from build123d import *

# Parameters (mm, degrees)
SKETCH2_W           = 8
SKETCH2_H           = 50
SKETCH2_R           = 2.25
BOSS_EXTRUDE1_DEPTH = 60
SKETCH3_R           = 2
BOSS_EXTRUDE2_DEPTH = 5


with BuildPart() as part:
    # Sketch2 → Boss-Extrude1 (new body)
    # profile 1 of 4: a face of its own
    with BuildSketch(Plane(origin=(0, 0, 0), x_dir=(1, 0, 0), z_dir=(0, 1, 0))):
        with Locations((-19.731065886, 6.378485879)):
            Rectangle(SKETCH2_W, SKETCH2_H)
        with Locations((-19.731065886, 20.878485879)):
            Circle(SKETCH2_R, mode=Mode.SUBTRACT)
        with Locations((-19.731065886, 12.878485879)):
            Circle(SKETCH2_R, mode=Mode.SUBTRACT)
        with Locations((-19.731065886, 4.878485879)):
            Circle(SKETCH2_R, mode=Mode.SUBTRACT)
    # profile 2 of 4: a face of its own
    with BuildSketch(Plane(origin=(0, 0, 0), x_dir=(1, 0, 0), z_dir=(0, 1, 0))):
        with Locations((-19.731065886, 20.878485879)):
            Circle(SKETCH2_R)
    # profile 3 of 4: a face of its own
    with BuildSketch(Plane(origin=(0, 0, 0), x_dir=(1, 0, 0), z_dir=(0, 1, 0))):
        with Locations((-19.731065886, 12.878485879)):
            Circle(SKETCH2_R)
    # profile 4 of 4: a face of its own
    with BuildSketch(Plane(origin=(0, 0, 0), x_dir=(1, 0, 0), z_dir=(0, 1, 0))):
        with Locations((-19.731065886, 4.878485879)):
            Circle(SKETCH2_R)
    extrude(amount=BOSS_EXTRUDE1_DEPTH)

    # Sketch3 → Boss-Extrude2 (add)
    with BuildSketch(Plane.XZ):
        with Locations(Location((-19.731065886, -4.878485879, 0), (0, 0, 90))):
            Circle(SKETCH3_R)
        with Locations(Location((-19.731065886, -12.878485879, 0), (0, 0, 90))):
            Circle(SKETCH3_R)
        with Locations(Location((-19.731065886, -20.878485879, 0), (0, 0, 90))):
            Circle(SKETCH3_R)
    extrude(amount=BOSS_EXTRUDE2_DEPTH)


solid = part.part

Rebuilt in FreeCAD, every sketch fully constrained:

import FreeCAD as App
import Part
import Sketcher
from FreeCAD import Vector
Q = App.Units.Quantity

doc = App.newDocument("Part")
body = doc.addObject("PartDesign::Body", "Body")

# Sketch on XZ plane
sketch1 = body.newObject("Sketcher::SketchObject", "Sketch")
sketch1.AttachmentSupport = (doc.getObject("XZ_Plane"), [""])
sketch1.MapMode = "FlatFace"
sketch1.addGeometry(Part.LineSegment(Vector(-23.731066, -31.378486, 0), Vector(-23.731066, 18.621514, 0)), False)
sketch1.addGeometry(Part.LineSegment(Vector(-23.731066, 18.621514, 0), Vector(-15.731066, 18.621514, 0)), False)
sketch1.addGeometry(Part.LineSegment(Vector(-15.731066, 18.621514, 0), Vector(-15.731066, -31.378486, 0)), False)
sketch1.addGeometry(Part.LineSegment(Vector(-15.731066, -31.378486, 0), Vector(-23.731066, -31.378486, 0)), False)
sketch1.addConstraint(Sketcher.Constraint("Coincident", 0, 2, 1, 1))
sketch1.addConstraint(Sketcher.Constraint("Coincident", 1, 2, 2, 1))
sketch1.addConstraint(Sketcher.Constraint("Coincident", 2, 2, 3, 1))
sketch1.addConstraint(Sketcher.Constraint("Coincident", 3, 2, 0, 1))
sketch1.addConstraint(Sketcher.Constraint("Vertical", 0))
sketch1.addConstraint(Sketcher.Constraint("Horizontal", 1))
sketch1.addConstraint(Sketcher.Constraint("Vertical", 2))
sketch1.addConstraint(Sketcher.Constraint("Horizontal", 3))
sketch1.addConstraint(Sketcher.Constraint("DistanceX", 1, 1, 1, 2, Q("8 mm")))
sketch1.addConstraint(Sketcher.Constraint("DistanceY", 0, 1, 0, 2, Q("50 mm")))
sketch1.addConstraint(Sketcher.Constraint("DistanceX", 0, 2, -1, 1, Q("23.731066 mm")))
sketch1.addConstraint(Sketcher.Constraint("DistanceY", -1, 1, 0, 2, Q("18.621514 mm")))
pad1 = body.newObject("PartDesign::Pad", "Pad")
pad1.Profile = sketch1
pad1.Length = 60
pad1.Reversed = True

# Sketch on XZ plane
sketch2 = body.newObject("Sketcher::SketchObject", "Sketch001")
sketch2.AttachmentSupport = (doc.getObject("XZ_Plane"), [""])
sketch2.MapMode = "FlatFace"
sketch2.addGeometry(Part.Circle(Vector(-19.731066, -4.878486, 0), Vector(0, 0, 1), 2), False)
sketch2.addGeometry(Part.Circle(Vector(-19.731066, -12.878486, 0), Vector(0, 0, 1), 2), False)
sketch2.addGeometry(Part.Circle(Vector(-19.731066, -20.878486, 0), Vector(0, 0, 1), 2), False)
sketch2.addConstraint(Sketcher.Constraint("Equal", 0, 1))
sketch2.addConstraint(Sketcher.Constraint("Equal", 1, 2))
sketch2.addConstraint(Sketcher.Constraint("Vertical", 0, 3, 1, 3))
sketch2.addConstraint(Sketcher.Constraint("Vertical", 1, 3, 2, 3))
sketch2.addConstraint(Sketcher.Constraint("Diameter", 0, Q("4 mm")))
sketch2.addConstraint(Sketcher.Constraint("DistanceY", 1, 3, 0, 3, Q("8 mm")))
sketch2.addConstraint(Sketcher.Constraint("DistanceY", 2, 3, 1, 3, Q("8 mm")))
sketch2.addConstraint(Sketcher.Constraint("DistanceX", 0, 3, -1, 1, Q("19.731066 mm")))
sketch2.addConstraint(Sketcher.Constraint("DistanceY", 0, 3, -1, 1, Q("4.878486 mm")))
pad2 = body.newObject("PartDesign::Pad", "Pad001")
pad2.Profile = sketch2
pad2.Length = 5

doc.recompute()
